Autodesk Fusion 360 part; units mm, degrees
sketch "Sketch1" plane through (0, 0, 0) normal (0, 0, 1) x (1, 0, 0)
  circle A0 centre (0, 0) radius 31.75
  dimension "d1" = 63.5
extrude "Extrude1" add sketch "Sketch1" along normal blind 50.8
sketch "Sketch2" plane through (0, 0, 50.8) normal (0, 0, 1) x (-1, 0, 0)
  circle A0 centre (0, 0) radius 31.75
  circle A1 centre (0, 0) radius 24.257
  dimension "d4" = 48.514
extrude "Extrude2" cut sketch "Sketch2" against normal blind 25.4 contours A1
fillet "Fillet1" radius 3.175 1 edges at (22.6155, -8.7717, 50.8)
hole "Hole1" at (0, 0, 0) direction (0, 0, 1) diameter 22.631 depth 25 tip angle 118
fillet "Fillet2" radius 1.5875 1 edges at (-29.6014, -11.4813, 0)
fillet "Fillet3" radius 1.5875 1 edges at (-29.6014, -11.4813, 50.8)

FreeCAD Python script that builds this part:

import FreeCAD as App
import Part
import Sketcher
from FreeCAD import Vector
Q = App.Units.Quantity


def edges_at(feature, points):
    """Names of the edges that pass closest to the given points."""
    edges = feature.Shape.Edges
    near = lambda p: min(range(len(edges)), key=lambda i: edges[i].distToShape(Part.Vertex(*p))[0])
    return sorted({f"Edge{near(p) + 1}" for p in points})

doc = App.newDocument("Part")
body = doc.addObject("PartDesign::Body", "Body")

# Sketch on XY plane
sketch1 = doc.addObject("Sketcher::SketchObject", "Sketch")
body.addObject(sketch1)
sketch1.AttachmentSupport = (doc.XY_Plane, [""])
sketch1.MapMode = "FlatFace"
sketch1.addGeometry(Part.Circle(Vector(0, 0, 0), Vector(0, 0, 1), 32), False)
sketch1.addConstraint([
    Sketcher.Constraint("Coincident", 0, 3, -1, 1),
    Sketcher.Constraint("Diameter", 0, Q("2.5 in")),
])
pad1 = doc.addObject("PartDesign::Pad", "Pad")
body.addObject(pad1)
pad1.Profile = sketch1
pad1.Length = Q("2 in")

# Sketch on XY plane
sketch2 = doc.addObject("Sketcher::SketchObject", "Sketch001")
body.addObject(sketch2)
sketch2.AttachmentSupport = (doc.XY_Plane, [""])
sketch2.MapMode = "FlatFace"
sketch2.AttachmentOffset = App.Placement(Vector(0, 0, 2 * 25.4), App.Rotation())
sketch2.addGeometry(Part.Circle(Vector(0, 0, 0), Vector(0, 0, 1), 24), False)
sketch2.addConstraint([
    Sketcher.Constraint("Coincident", 0, 3, -1, 1),
    Sketcher.Constraint("Diameter", 0, Q("1.91 in")),
])
pocket1 = doc.addObject("PartDesign::Pocket", "Pocket")
body.addObject(pocket1)
pocket1.Profile = sketch2
pocket1.Length = Q("1 in")
doc.recompute()

fillet = doc.addObject("PartDesign::Fillet", "Fillet")
body.addObject(fillet)
fillet.Base = (pocket1, edges_at(pocket1, [(22.616, -8.772, 50.8)]))
fillet.Radius = Q("0.125 in")

# Sketch on XY plane
sketch3 = doc.addObject("Sketcher::SketchObject", "Sketch002")
body.addObject(sketch3)
sketch3.AttachmentSupport = (doc.XY_Plane, [""])
sketch3.MapMode = "FlatFace"
sketch3.addGeometry(Part.Circle(Vector(0, 0, 0), Vector(0, 0, 1), 11), False)
sketch3.addConstraint([
    Sketcher.Constraint("Coincident", 0, 3, -1, 1),
    Sketcher.Constraint("Diameter", 0, 22.631),
])
doc.recompute()
hole = doc.addObject("PartDesign::Hole", "Hole")
body.addObject(hole)
hole.Profile = sketch3
hole.ThreadType = "None"
hole.Diameter = 22.631
hole.DepthType = "Dimension"
hole.Depth = 25
hole.DrillPoint = "Angled"
hole.DrillPointAngle = 118
hole.Reversed = True
doc.recompute()

fillet2 = doc.addObject("PartDesign::Fillet", "Fillet001")
body.addObject(fillet2)
fillet2.Base = (hole, edges_at(hole, [(-29.601, -11.481, 0)]))
fillet2.Radius = Q("0.0625 in")
doc.recompute()

fillet3 = doc.addObject("PartDesign::Fillet", "Fillet002")
body.addObject(fillet3)
fillet3.Base = (fillet2, edges_at(fillet2, [(-29.601, -11.481, 50.8)]))
fillet3.Radius = Q("0.0625 in")

doc.recompute()
